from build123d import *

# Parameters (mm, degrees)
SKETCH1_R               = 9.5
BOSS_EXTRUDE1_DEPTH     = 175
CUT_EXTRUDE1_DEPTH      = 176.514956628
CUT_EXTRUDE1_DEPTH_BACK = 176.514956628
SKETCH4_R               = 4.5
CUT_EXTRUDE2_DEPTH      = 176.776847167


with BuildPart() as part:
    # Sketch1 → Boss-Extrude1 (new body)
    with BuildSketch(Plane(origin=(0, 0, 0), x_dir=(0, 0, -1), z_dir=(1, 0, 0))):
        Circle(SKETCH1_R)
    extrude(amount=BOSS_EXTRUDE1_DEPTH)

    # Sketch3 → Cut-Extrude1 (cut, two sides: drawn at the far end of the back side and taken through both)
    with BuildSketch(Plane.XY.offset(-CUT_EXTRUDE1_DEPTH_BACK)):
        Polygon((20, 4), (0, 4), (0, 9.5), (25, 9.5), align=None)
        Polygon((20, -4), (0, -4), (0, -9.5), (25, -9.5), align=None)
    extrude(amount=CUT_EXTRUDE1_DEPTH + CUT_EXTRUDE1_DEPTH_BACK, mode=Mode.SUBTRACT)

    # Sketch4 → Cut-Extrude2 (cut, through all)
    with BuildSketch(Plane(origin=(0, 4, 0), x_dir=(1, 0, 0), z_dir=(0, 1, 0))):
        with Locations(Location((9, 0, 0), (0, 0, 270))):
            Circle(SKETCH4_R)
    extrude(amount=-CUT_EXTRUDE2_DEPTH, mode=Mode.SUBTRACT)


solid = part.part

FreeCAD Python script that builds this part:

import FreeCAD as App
import Part
import Sketcher
from FreeCAD import Vector
Q = App.Units.Quantity

doc = App.newDocument("Part")
body = doc.addObject("PartDesign::Body", "Body")

# Sketch on YZ plane
sketch1 = doc.addObject("Sketcher::SketchObject", "Sketch")
body.addObject(sketch1)
sketch1.AttachmentSupport = (doc.YZ_Plane, [""])
sketch1.MapMode = "FlatFace"
sketch1.addGeometry(Part.Circle(Vector(0, 0, 0), Vector(0, 0, 1), 10), False)
sketch1.addConstraint(Sketcher.Constraint("Coincident", 0, 3, -1, 1))
sketch1.addConstraint(Sketcher.Constraint("Diameter", 0, Q("19 mm")))
pad1 = doc.addObject("PartDesign::Pad", "Pad")
body.addObject(pad1)
pad1.Profile = sketch1
pad1.Length = 175

# Sketch on XY plane
sketch2 = doc.addObject("Sketcher::SketchObject", "Sketch001")
body.addObject(sketch2)
sketch2.AttachmentSupport = (doc.XY_Plane, [""])
sketch2.MapMode = "FlatFace"
sketch2.addGeometry(Part.LineSegment(Vector(0, 4, 0), Vector(20, 4, 0)), False)
sketch2.addGeometry(Part.LineSegment(Vector(20, 4, 0), Vector(25, 10, 0)), False)
sketch2.addGeometry(Part.LineSegment(Vector(25, 10, 0), Vector(0, 10, 0)), False)
sketch2.addGeometry(Part.LineSegment(Vector(0, 10, 0), Vector(0, 4, 0)), False)
sketch2.addGeometry(Part.LineSegment(Vector(20, -4, 0), Vector(0, -4, 0)), False)
sketch2.addGeometry(Part.LineSegment(Vector(0, -4, 0), Vector(0, -10, 0)), False)
sketch2.addGeometry(Part.LineSegment(Vector(0, -10, 0), Vector(25, -10, 0)), False)
sketch2.addGeometry(Part.LineSegment(Vector(25, -10, 0), Vector(20, -4, 0)), False)
sketch2.addConstraint(Sketcher.Constraint("Coincident", 0, 2, 1, 1))
sketch2.addConstraint(Sketcher.Constraint("Coincident", 1, 2, 2, 1))
sketch2.addConstraint(Sketcher.Constraint("Coincident", 2, 2, 3, 1))
sketch2.addConstraint(Sketcher.Constraint("Coincident", 3, 2, 0, 1))
sketch2.addConstraint(Sketcher.Constraint("Coincident", 4, 2, 5, 1))
sketch2.addConstraint(Sketcher.Constraint("Coincident", 5, 2, 6, 1))
sketch2.addConstraint(Sketcher.Constraint("Coincident", 6, 2, 7, 1))
sketch2.addConstraint(Sketcher.Constraint("Coincident", 7, 2, 4, 1))
sketch2.addConstraint(Sketcher.Constraint("Horizontal", 0))
sketch2.addConstraint(Sketcher.Constraint("Horizontal", 2))
sketch2.addConstraint(Sketcher.Constraint("Vertical", 3))
sketch2.addConstraint(Sketcher.Constraint("Horizontal", 4))
sketch2.addConstraint(Sketcher.Constraint("Vertical", 5))
sketch2.addConstraint(Sketcher.Constraint("Horizontal", 6))
sketch2.addConstraint(Sketcher.Constraint("Symmetric", 3, 2, 4, 2, -1, 1))
sketch2.addConstraint(Sketcher.Constraint("Symmetric", 2, 2, 5, 2, -1))
sketch2.addConstraint(Sketcher.Constraint("Vertical", 1, 2, 6, 2))
sketch2.addConstraint(Sketcher.Constraint("Vertical", 0, 2, 7, 2))
sketch2.addConstraint(Sketcher.Constraint("DistanceX", 0, 1, 0, 2, Q("20 mm")))
sketch2.addConstraint(Sketcher.Constraint("DistanceX", 2, 2, 2, 1, Q("25 mm")))
sketch2.addConstraint(Sketcher.Constraint("DistanceY", 3, 2, 3, 1, Q("5.5 mm")))
sketch2.addConstraint(Sketcher.Constraint("DistanceY", -1, 1, 0, 2, Q("4 mm")))
pocket1 = doc.addObject("PartDesign::Pocket", "Pocket")
body.addObject(pocket1)
pocket1.Profile = sketch2
pocket1.Type = "ThroughAll"
pocket1.Midplane = True

# Sketch on XZ plane
sketch3 = doc.addObject("Sketcher::SketchObject", "Sketch002")
body.addObject(sketch3)
sketch3.AttachmentSupport = (doc.XZ_Plane, [""])
sketch3.MapMode = "FlatFace"
sketch3.AttachmentOffset = App.Placement(Vector(0, 0, -4), App.Rotation())
sketch3.addGeometry(Part.Circle(Vector(9, 0, 0), Vector(0, 0, 1), 4.5), False)
sketch3.addConstraint(Sketcher.Constraint("PointOnObject", 0, 3, -1))
sketch3.addConstraint(Sketcher.Constraint("Diameter", 0, Q("9 mm")))
sketch3.addConstraint(Sketcher.Constraint("DistanceX", -1, 1, 0, 3, Q("9 mm")))
pocket2 = doc.addObject("PartDesign::Pocket", "Pocket001")
body.addObject(pocket2)
pocket2.Profile = sketch3
pocket2.Type = "ThroughAll"
pocket2.Reversed = True

doc.recompute()
